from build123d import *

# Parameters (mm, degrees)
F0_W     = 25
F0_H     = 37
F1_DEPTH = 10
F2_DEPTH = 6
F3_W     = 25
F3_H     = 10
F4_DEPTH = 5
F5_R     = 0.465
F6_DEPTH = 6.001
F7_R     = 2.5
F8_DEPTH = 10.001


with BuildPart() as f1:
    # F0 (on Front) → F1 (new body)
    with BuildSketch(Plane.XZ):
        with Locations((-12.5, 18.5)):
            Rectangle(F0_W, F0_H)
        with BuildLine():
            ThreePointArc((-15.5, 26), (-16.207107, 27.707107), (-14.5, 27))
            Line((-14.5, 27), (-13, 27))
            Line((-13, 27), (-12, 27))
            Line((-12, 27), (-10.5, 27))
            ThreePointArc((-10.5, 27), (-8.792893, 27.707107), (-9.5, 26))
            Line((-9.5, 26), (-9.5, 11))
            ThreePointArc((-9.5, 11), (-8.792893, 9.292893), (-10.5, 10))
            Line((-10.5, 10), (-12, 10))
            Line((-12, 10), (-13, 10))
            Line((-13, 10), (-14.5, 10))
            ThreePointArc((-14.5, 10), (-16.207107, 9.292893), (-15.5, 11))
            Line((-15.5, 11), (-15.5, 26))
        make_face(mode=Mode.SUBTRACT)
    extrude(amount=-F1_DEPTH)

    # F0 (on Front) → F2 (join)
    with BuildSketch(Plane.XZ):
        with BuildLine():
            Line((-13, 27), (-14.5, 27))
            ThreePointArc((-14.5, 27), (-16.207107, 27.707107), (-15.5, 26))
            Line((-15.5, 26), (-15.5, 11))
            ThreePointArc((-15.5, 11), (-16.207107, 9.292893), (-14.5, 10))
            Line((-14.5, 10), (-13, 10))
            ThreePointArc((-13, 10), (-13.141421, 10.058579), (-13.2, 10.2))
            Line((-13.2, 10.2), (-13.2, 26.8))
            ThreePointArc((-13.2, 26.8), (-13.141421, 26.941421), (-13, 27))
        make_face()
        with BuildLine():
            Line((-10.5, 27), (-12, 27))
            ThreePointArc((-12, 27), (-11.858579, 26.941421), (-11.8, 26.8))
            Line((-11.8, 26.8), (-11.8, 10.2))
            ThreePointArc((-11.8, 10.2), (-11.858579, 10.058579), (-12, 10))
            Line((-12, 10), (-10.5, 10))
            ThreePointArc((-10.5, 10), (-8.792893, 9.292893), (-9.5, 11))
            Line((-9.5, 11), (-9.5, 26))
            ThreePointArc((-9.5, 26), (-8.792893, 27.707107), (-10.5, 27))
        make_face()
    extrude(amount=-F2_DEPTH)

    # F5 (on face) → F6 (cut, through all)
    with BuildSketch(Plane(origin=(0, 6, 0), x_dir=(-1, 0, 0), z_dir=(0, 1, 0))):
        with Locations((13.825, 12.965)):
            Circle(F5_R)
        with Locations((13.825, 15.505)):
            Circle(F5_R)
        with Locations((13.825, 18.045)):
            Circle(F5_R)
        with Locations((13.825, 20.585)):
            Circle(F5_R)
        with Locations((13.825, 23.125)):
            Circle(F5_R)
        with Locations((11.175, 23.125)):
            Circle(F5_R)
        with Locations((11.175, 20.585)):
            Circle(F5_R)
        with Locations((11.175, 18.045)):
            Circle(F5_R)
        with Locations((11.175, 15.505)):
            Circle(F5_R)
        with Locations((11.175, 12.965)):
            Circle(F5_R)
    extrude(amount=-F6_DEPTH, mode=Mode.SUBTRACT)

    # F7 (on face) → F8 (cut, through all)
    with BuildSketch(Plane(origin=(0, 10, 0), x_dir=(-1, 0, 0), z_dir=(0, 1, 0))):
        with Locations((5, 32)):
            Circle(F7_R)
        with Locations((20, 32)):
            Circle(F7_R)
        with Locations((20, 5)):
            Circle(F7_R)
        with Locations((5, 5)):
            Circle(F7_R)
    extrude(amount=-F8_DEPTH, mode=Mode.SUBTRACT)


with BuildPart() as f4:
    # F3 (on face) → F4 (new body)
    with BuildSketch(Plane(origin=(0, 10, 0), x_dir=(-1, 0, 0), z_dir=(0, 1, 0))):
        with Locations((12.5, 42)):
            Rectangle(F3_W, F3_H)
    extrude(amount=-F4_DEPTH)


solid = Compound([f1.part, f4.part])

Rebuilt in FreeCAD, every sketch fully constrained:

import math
import FreeCAD as App
import Part
import Sketcher
from FreeCAD import Vector

doc = App.newDocument("Part")
body = doc.addObject("PartDesign::Body", "Body")

# Sketch on XZ plane
sketch1 = doc.addObject("Sketcher::SketchObject", "Sketch")
body.addObject(sketch1)
sketch1.AttachmentSupport = (doc.XZ_Plane, [""])
sketch1.MapMode = "FlatFace"
sketch1.addGeometry([
    Part.LineSegment(Vector(-25, 37, 0), Vector(-25, 0, 0)),  # 0
    Part.LineSegment(Vector(-25, 0, 0), Vector(0, 0, 0)),  # 1
    Part.LineSegment(Vector(0, 0, 0), Vector(0, 37, 0)),  # 2
    Part.LineSegment(Vector(0, 37, 0), Vector(-25, 37, 0)),  # 3
    Part.LineSegment(Vector(-15.5, 11, 0), Vector(-15.5, 26, 0)),  # 4
    Part.ArcOfCircle(Part.Circle(Vector(-15.5, 27, 0), Vector(0, 0, 1), 1), math.radians(-0.000007), math.radians(270.000007)),  # 5
    Part.LineSegment(Vector(-14.5, 27, 0), Vector(-10.5, 27, 0)),  # 6
    Part.ArcOfCircle(Part.Circle(Vector(-9.5, 27, 0), Vector(0, 0, 1), 1), math.radians(-90.000007), math.radians(180.000007)),  # 7
    Part.LineSegment(Vector(-9.5, 26, 0), Vector(-9.5, 11, 0)),  # 8
    Part.ArcOfCircle(Part.Circle(Vector(-9.5, 10, 0), Vector(0, 0, 1), 1), math.radians(179.999993), math.radians(450.000007)),  # 9
    Part.LineSegment(Vector(-10.5, 10, 0), Vector(-14.5, 10, 0)),  # 10
    Part.ArcOfCircle(Part.Circle(Vector(-15.5, 10, 0), Vector(0, 0, 1), 1), math.radians(89.999993), math.radians(360.000007)),  # 11
], False)
sketch1.addConstraint([
    Sketcher.Constraint("Coincident", 0, 2, 1, 1),
    Sketcher.Constraint("Coincident", 1, 2, 2, 1),
    Sketcher.Constraint("Coincident", 2, 2, 3, 1),
    Sketcher.Constraint("Coincident", 3, 2, 0, 1),
    Sketcher.Constraint("Coincident", 4, 2, 5, 2),
    Sketcher.Constraint("Coincident", 5, 1, 6, 1),
    Sketcher.Constraint("Coincident", 6, 2, 7, 2),
    Sketcher.Constraint("Coincident", 7, 1, 8, 1),
    Sketcher.Constraint("Coincident", 8, 2, 9, 2),
    Sketcher.Constraint("Coincident", 9, 1, 10, 1),
    Sketcher.Constraint("Coincident", 10, 2, 11, 2),
    Sketcher.Constraint("Coincident", 11, 1, 4, 1),
    Sketcher.Constraint("Vertical", 0),
    Sketcher.Constraint("Horizontal", 1),
    Sketcher.Constraint("Vertical", 2),
    Sketcher.Constraint("Horizontal", 3),
    Sketcher.Constraint("Vertical", 4),
    Sketcher.Constraint("Horizontal", 6),
    Sketcher.Constraint("Vertical", 8),
    Sketcher.Constraint("Horizontal", 10),
    Sketcher.Constraint("Coincident", 1, 2, -1, 1),
    Sketcher.Constraint("Equal", 5, 7),
    Sketcher.Constraint("Equal", 7, 9),
    Sketcher.Constraint("Equal", 9, 11),
    Sketcher.Constraint("Horizontal", 5, 3, 7, 3),
    Sketcher.Constraint("Horizontal", 9, 3, 11, 3),
    Sketcher.Constraint("Horizontal", 7, 3, 5, 1),
    Sketcher.Constraint("Horizontal", 11, 3, 9, 1),
    Sketcher.Constraint("Vertical", 7, 3, 9, 3),
    Sketcher.Constraint("Vertical", 5, 3, 11, 3),
    Sketcher.Constraint("Vertical", 11, 3, 4, 2),
    Sketcher.Constraint("Vertical", 9, 3, 7, 1),
    Sketcher.Constraint("Radius", 5, 1.0),
    Sketcher.Constraint("DistanceX", 1, 1, 1, 2, 25.0),
    Sketcher.Constraint("DistanceX", 6, 1, 6, 2, 4.0),
    Sketcher.Constraint("DistanceY", 0, 2, 0, 1, 37.0),
    Sketcher.Constraint("DistanceY", 4, 1, 4, 2, 15.0),
    Sketcher.Constraint("DistanceY", -1, 1, 5, 3, 27.0),
    Sketcher.Constraint("DistanceX", 5, 3, -1, 1, 15.5),
])
pad1 = doc.addObject("PartDesign::Pad", "Pad")
body.addObject(pad1)
pad1.Profile = sketch1
pad1.Length = 10
pad1.Reversed = True

# Sketch on XZ plane
sketch2 = doc.addObject("Sketcher::SketchObject", "Sketch001")
body.addObject(sketch2)
sketch2.AttachmentSupport = (doc.XZ_Plane, [""])
sketch2.MapMode = "FlatFace"
sketch2.addGeometry([
    Part.LineSegment(Vector(-13, 27, 0), Vector(-14.5, 27, 0)),  # 0
    Part.ArcOfCircle(Part.Circle(Vector(-15.5, 27, 0), Vector(0, 0, 1), 1), math.radians(-0.000007), math.radians(270.000007)),  # 1
    Part.LineSegment(Vector(-15.5, 26, 0), Vector(-15.5, 11, 0)),  # 2
    Part.ArcOfCircle(Part.Circle(Vector(-15.5, 10, 0), Vector(0, 0, 1), 1), math.radians(89.999993), math.radians(360.000007)),  # 3
    Part.LineSegment(Vector(-14.5, 10, 0), Vector(-13, 10, 0)),  # 4
    Part.ArcOfCircle(Part.Circle(Vector(-12.999999, 10.200001, 0), Vector(0, 0, 1), 0.200001), math.radians(-179.999652), math.radians(-90.000348)),  # 5
    Part.LineSegment(Vector(-13.2, 10.2, 0), Vector(-13.2, 26.8, 0)),  # 6
    Part.ArcOfCircle(Part.Circle(Vector(-12.999999, 26.799999, 0), Vector(0, 0, 1), 0.200001), math.radians(90.000348), math.radians(179.999652)),  # 7
    Part.LineSegment(Vector(-10.5, 27, 0), Vector(-12, 27, 0)),  # 8
    Part.ArcOfCircle(Part.Circle(Vector(-12.000001, 26.799999, 0), Vector(0, 0, 1), 0.200001), math.radians(0.000348), math.radians(89.999652)),  # 9
    Part.LineSegment(Vector(-11.8, 26.8, 0), Vector(-11.8, 10.2, 0)),  # 10
    Part.ArcOfCircle(Part.Circle(Vector(-12.000001, 10.200001, 0), Vector(0, 0, 1), 0.200001), math.radians(-89.999652), math.radians(-0.000348)),  # 11
    Part.LineSegment(Vector(-12, 10, 0), Vector(-10.5, 10, 0)),  # 12
    Part.ArcOfCircle(Part.Circle(Vector(-9.5, 10, 0), Vector(0, 0, 1), 1), math.radians(179.999993), math.radians(450.000007)),  # 13
    Part.LineSegment(Vector(-9.5, 11, 0), Vector(-9.5, 26, 0)),  # 14
    Part.ArcOfCircle(Part.Circle(Vector(-9.5, 27, 0), Vector(0, 0, 1), 1), math.radians(-90.000007), math.radians(180.000007)),  # 15
], False)
sketch2.addConstraint([
    Sketcher.Constraint("Coincident", 0, 2, 1, 1),
    Sketcher.Constraint("Coincident", 1, 2, 2, 1),
    Sketcher.Constraint("Coincident", 2, 2, 3, 1),
    Sketcher.Constraint("Coincident", 3, 2, 4, 1),
    Sketcher.Constraint("Coincident", 4, 2, 5, 2),
    Sketcher.Constraint("Coincident", 5, 1, 6, 1),
    Sketcher.Constraint("Coincident", 6, 2, 7, 2),
    Sketcher.Constraint("Coincident", 7, 1, 0, 1),
    Sketcher.Constraint("Coincident", 8, 2, 9, 2),
    Sketcher.Constraint("Coincident", 9, 1, 10, 1),
    Sketcher.Constraint("Coincident", 10, 2, 11, 2),
    Sketcher.Constraint("Coincident", 11, 1, 12, 1),
    Sketcher.Constraint("Coincident", 12, 2, 13, 1),
    Sketcher.Constraint("Coincident", 13, 2, 14, 1),
    Sketcher.Constraint("Coincident", 14, 2, 15, 1),
    Sketcher.Constraint("Coincident", 15, 2, 8, 1),
    Sketcher.Constraint("Horizontal", 0),
    Sketcher.Constraint("Vertical", 2),
    Sketcher.Constraint("Horizontal", 4),
    Sketcher.Constraint("Vertical", 6),
    Sketcher.Constraint("Horizontal", 8),
    Sketcher.Constraint("Vertical", 10),
    Sketcher.Constraint("Horizontal", 12),
    Sketcher.Constraint("Vertical", 14),
    Sketcher.Constraint("Equal", 1, 3),
    Sketcher.Constraint("Equal", 5, 7),
    Sketcher.Constraint("Equal", 7, 9),
    Sketcher.Constraint("Equal", 9, 11),
    Sketcher.Constraint("Equal", 3, 13),
    Sketcher.Constraint("Equal", 13, 15),
    Sketcher.Constraint("Horizontal", 7, 3, 9, 3),
    Sketcher.Constraint("Horizontal", 5, 3, 11, 3),
    Sketcher.Constraint("Horizontal", 3, 3, 13, 3),
    Sketcher.Constraint("Horizontal", 1, 3, 15, 3),
    Sketcher.Constraint("Horizontal", 15, 3, 0, 2),
    Sketcher.Constraint("Horizontal", 13, 3, 3, 2),
    Sketcher.Constraint("Horizontal", 11, 3, 5, 1),
    Sketcher.Constraint("Horizontal", 9, 3, 6, 2),
    Sketcher.Constraint("Horizontal", 6, 2, 9, 1),
    Sketcher.Constraint("Horizontal", 5, 1, 10, 2),
    Sketcher.Constraint("Vertical", 1, 3, 3, 3),
    Sketcher.Constraint("Vertical", 13, 3, 15, 3),
    Sketcher.Constraint("Vertical", 3, 3, 1, 2),
    Sketcher.Constraint("Vertical", 7, 3, 4, 2),
    Sketcher.Constraint("Vertical", 4, 2, 7, 1),
    Sketcher.Constraint("Vertical", 11, 3, 8, 2),
    Sketcher.Constraint("Vertical", 8, 2, 11, 1),
    Sketcher.Constraint("Vertical", 15, 3, 13, 2),
    Sketcher.Constraint("Equal", 4, 8),
    Sketcher.Constraint("Radius", 1, 1.0),
    Sketcher.Constraint("Radius", 5, 0.200001),
    Sketcher.Constraint("DistanceY", 2, 2, 2, 1, 15.0),
    Sketcher.Constraint("DistanceX", 0, 2, 0, 1, 1.5),
    Sketcher.Constraint("DistanceY", -1, 1, 1, 3, 27.0),
    Sketcher.Constraint("DistanceX", 5, 3, -1, 1, 12.999999),
    Sketcher.Constraint("DistanceX", 9, 3, -1, 1, 12.000001),
])
pad2 = doc.addObject("PartDesign::Pad", "Pad001")
body.addObject(pad2)
pad2.Profile = sketch2
pad2.Length = 6
pad2.Reversed = True

# Sketch on XZ plane
sketch3 = doc.addObject("Sketcher::SketchObject", "Sketch002")
body.addObject(sketch3)
sketch3.AttachmentSupport = (doc.XZ_Plane, [""])
sketch3.MapMode = "FlatFace"
sketch3.AttachmentOffset = App.Placement(Vector(0, 0, -6), App.Rotation())
sketch3.addGeometry([
    Part.Circle(Vector(-13.825, 12.965, 0), Vector(0, 0, 1), 0.465),  # 0
    Part.Circle(Vector(-13.825, 15.505, 0), Vector(0, 0, 1), 0.465),  # 1
    Part.Circle(Vector(-13.825, 18.045, 0), Vector(0, 0, 1), 0.465),  # 2
    Part.Circle(Vector(-13.825, 20.585, 0), Vector(0, 0, 1), 0.465),  # 3
    Part.Circle(Vector(-13.825, 23.125, 0), Vector(0, 0, 1), 0.465),  # 4
    Part.Circle(Vector(-11.175, 23.125, 0), Vector(0, 0, 1), 0.465),  # 5
    Part.Circle(Vector(-11.175, 20.585, 0), Vector(0, 0, 1), 0.465),  # 6
    Part.Circle(Vector(-11.175, 18.045, 0), Vector(0, 0, 1), 0.465),  # 7
    Part.Circle(Vector(-11.175, 15.505, 0), Vector(0, 0, 1), 0.465),  # 8
    Part.Circle(Vector(-11.175, 12.965, 0), Vector(0, 0, 1), 0.465),  # 9
], False)
sketch3.addConstraint([
    Sketcher.Constraint("Equal", 0, 1),
    Sketcher.Constraint("Equal", 1, 2),
    Sketcher.Constraint("Equal", 2, 3),
    Sketcher.Constraint("Equal", 3, 4),
    Sketcher.Constraint("Equal", 4, 5),
    Sketcher.Constraint("Equal", 5, 6),
    Sketcher.Constraint("Equal", 6, 7),
    Sketcher.Constraint("Equal", 7, 8),
    Sketcher.Constraint("Equal", 8, 9),
    Sketcher.Constraint("Horizontal", 4, 3, 5, 3),
    Sketcher.Constraint("Horizontal", 3, 3, 6, 3),
    Sketcher.Constraint("Horizontal", 2, 3, 7, 3),
    Sketcher.Constraint("Horizontal", 1, 3, 8, 3),
    Sketcher.Constraint("Horizontal", 0, 3, 9, 3),
    Sketcher.Constraint("Vertical", 0, 3, 1, 3),
    Sketcher.Constraint("Vertical", 1, 3, 2, 3),
    Sketcher.Constraint("Vertical", 2, 3, 3, 3),
    Sketcher.Constraint("Vertical", 3, 3, 4, 3),
    Sketcher.Constraint("Vertical", 5, 3, 6, 3),
    Sketcher.Constraint("Vertical", 6, 3, 7, 3),
    Sketcher.Constraint("Vertical", 7, 3, 8, 3),
    Sketcher.Constraint("Vertical", 8, 3, 9, 3),
    Sketcher.Constraint("Diameter", 0, 0.93),
    Sketcher.Constraint("DistanceY", 0, 3, 1, 3, 2.54),
    Sketcher.Constraint("DistanceY", 1, 3, 2, 3, 2.54),
    Sketcher.Constraint("DistanceY", 2, 3, 3, 3, 2.54),
    Sketcher.Constraint("DistanceY", 3, 3, 4, 3, 2.54),
    Sketcher.Constraint("DistanceX", 4, 3, 5, 3, 2.65),
    Sketcher.Constraint("DistanceX", 0, 3, -1, 1, 13.825),
    Sketcher.Constraint("DistanceY", -1, 1, 0, 3, 12.965),
])
pocket1 = doc.addObject("PartDesign::Pocket", "Pocket")
body.addObject(pocket1)
pocket1.Profile = sketch3
pocket1.Type = "ThroughAll"
pocket1.Reversed = True

# Sketch on XZ plane
sketch4 = doc.addObject("Sketcher::SketchObject", "Sketch003")
body.addObject(sketch4)
sketch4.AttachmentSupport = (doc.XZ_Plane, [""])
sketch4.MapMode = "FlatFace"
sketch4.AttachmentOffset = App.Placement(Vector(0, 0, -10), App.Rotation())
sketch4.addGeometry([
    Part.Circle(Vector(-5, 32, 0), Vector(0, 0, 1), 2.5),
    Part.Circle(Vector(-20, 32, 0), Vector(0, 0, 1), 2.5),
    Part.Circle(Vector(-20, 5, 0), Vector(0, 0, 1), 2.5),
    Part.Circle(Vector(-5, 5, 0), Vector(0, 0, 1), 2.5),
], False)
sketch4.addConstraint([
    Sketcher.Constraint("Equal", 0, 1),
    Sketcher.Constraint("Equal", 1, 2),
    Sketcher.Constraint("Equal", 2, 3),
    Sketcher.Constraint("Horizontal", 0, 3, 1, 3),
    Sketcher.Constraint("Horizontal", 2, 3, 3, 3),
    Sketcher.Constraint("Vertical", 1, 3, 2, 3),
    Sketcher.Constraint("Vertical", 0, 3, 3, 3),
    Sketcher.Constraint("Diameter", 0, 5.0),
    Sketcher.Constraint("DistanceX", 0, 3, -1, 1, 5.0),
    Sketcher.Constraint("DistanceY", -1, 1, 0, 3, 32.0),
    Sketcher.Constraint("DistanceX", 1, 3, -1, 1, 20.0),
    Sketcher.Constraint("DistanceY", -1, 1, 2, 3, 5.0),
])
pocket2 = doc.addObject("PartDesign::Pocket", "Pocket001")
body.addObject(pocket2)
pocket2.Profile = sketch4
pocket2.Type = "ThroughAll"
pocket2.Reversed = True
body2 = doc.addObject("PartDesign::Body", "Body001")

# Sketch on XZ plane
sketch5 = doc.addObject("Sketcher::SketchObject", "Sketch004")
body2.addObject(sketch5)
sketch5.AttachmentSupport = (doc.getObject("XZ_Plane001"), [""])
sketch5.MapMode = "FlatFace"
sketch5.AttachmentOffset = App.Placement(Vector(0, 0, -10), App.Rotation())
sketch5.addGeometry([
    Part.LineSegment(Vector(0, 47, 0), Vector(0, 37, 0)),
    Part.LineSegment(Vector(0, 37, 0), Vector(-25, 37, 0)),
    Part.LineSegment(Vector(-25, 37, 0), Vector(-25, 47, 0)),
    Part.LineSegment(Vector(-25, 47, 0), Vector(0, 47, 0)),
], False)
sketch5.addConstraint([
    Sketcher.Constraint("Coincident", 0, 2, 1, 1),
    Sketcher.Constraint("Coincident", 1, 2, 2, 1),
    Sketcher.Constraint("Coincident", 2, 2, 3, 1),
    Sketcher.Constraint("Coincident", 3, 2, 0, 1),
    Sketcher.Constraint("Vertical", 0),
    Sketcher.Constraint("Horizontal", 1),
    Sketcher.Constraint("Vertical", 2),
    Sketcher.Constraint("Horizontal", 3),
    Sketcher.Constraint("PointOnObject", 0, 2, -2),
    Sketcher.Constraint("DistanceX", 1, 2, 1, 1, 25.0),
    Sketcher.Constraint("DistanceY", 0, 2, 0, 1, 10.0),
    Sketcher.Constraint("DistanceY", -1, 1, 0, 2, 37.0),
])
pad3 = doc.addObject("PartDesign::Pad", "Pad002")
body2.addObject(pad3)
pad3.Profile = sketch5
pad3.Length = 5

doc.recompute()
